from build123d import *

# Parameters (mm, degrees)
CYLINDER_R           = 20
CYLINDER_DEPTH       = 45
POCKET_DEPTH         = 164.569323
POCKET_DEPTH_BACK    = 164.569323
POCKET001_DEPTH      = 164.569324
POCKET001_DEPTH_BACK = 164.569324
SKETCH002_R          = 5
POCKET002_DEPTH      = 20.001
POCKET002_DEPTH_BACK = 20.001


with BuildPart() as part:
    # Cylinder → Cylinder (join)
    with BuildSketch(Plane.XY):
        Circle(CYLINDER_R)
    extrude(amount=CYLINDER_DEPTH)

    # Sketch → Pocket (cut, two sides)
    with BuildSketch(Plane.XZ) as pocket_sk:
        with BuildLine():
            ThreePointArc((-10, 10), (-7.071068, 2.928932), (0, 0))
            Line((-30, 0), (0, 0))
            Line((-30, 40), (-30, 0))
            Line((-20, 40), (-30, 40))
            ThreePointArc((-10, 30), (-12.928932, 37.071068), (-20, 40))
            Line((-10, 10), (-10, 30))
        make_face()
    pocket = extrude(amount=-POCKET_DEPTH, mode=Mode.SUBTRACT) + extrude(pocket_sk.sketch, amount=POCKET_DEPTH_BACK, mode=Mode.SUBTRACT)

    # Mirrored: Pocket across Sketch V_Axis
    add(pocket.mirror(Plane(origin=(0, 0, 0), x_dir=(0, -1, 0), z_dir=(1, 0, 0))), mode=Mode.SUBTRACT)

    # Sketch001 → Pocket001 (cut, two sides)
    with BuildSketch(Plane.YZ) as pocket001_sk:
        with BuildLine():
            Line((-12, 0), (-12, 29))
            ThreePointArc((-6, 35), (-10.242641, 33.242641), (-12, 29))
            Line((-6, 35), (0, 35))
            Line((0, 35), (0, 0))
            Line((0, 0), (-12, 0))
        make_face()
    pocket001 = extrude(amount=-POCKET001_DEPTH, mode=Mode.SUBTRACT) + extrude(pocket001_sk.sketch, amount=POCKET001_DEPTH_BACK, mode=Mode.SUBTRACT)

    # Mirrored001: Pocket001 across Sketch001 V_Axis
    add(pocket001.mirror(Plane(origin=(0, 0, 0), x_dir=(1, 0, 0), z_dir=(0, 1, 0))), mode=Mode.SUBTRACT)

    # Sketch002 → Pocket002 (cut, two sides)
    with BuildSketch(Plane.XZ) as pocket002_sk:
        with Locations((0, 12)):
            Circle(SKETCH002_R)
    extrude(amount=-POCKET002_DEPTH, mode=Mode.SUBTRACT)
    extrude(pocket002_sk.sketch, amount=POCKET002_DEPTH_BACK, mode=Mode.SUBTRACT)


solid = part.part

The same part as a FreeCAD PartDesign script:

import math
import FreeCAD as App
import Part
import Sketcher

doc = App.newDocument("Part")
body = doc.addObject("PartDesign::Body", "Body")

# Sketch on XY plane
sketch1 = doc.addObject("Sketcher::SketchObject", "Sketch")
body.addObject(sketch1)
sketch1.AttachmentSupport = (doc.XY_Plane, [""])
sketch1.MapMode = "FlatFace"
sketch1.addGeometry(Part.Circle(App.Vector(0, 0, 0), App.Vector(0, 0, 1), 20), False)
sketch1.addConstraint(Sketcher.Constraint("Coincident", 0, 3, -1, 1))
sketch1.addConstraint(Sketcher.Constraint("Diameter", 0, 40.0))
pad1 = doc.addObject("PartDesign::Pad", "Pad")
body.addObject(pad1)
pad1.Profile = sketch1
pad1.Length = 45

# Sketch on XZ plane
sketch2 = doc.addObject("Sketcher::SketchObject", "Sketch001")
body.addObject(sketch2)
sketch2.AttachmentSupport = (doc.XZ_Plane, [""])
sketch2.MapMode = "FlatFace"
sketch2.addGeometry(Part.ArcOfCircle(Part.Circle(App.Vector(0, 10, 0), App.Vector(0, 0, 1), 10), math.radians(180), math.radians(270)), False)
sketch2.addGeometry(Part.LineSegment(App.Vector(-10, 10, 0), App.Vector(-10, 30, 0)), False)
sketch2.addGeometry(Part.ArcOfCircle(Part.Circle(App.Vector(-20, 30, 0), App.Vector(0, 0, 1), 10), math.radians(0), math.radians(90)), False)
sketch2.addGeometry(Part.LineSegment(App.Vector(-20, 40, 0), App.Vector(-30, 40, 0)), False)
sketch2.addGeometry(Part.LineSegment(App.Vector(-30, 40, 0), App.Vector(-30, 0, 0)), False)
sketch2.addGeometry(Part.LineSegment(App.Vector(-30, 0, 0), App.Vector(0, 0, 0)), False)
sketch2.addConstraint(Sketcher.Constraint("Tangent", 0, 1, 1, 1))
sketch2.addConstraint(Sketcher.Constraint("Tangent", 1, 2, 2, 1))
sketch2.addConstraint(Sketcher.Constraint("Tangent", 2, 2, 3, 1))
sketch2.addConstraint(Sketcher.Constraint("Coincident", 3, 2, 4, 1))
sketch2.addConstraint(Sketcher.Constraint("Coincident", 4, 2, 5, 1))
sketch2.addConstraint(Sketcher.Constraint("Tangent", 5, 2, 0, 2))
sketch2.addConstraint(Sketcher.Constraint("Vertical", 1))
sketch2.addConstraint(Sketcher.Constraint("Horizontal", 3))
sketch2.addConstraint(Sketcher.Constraint("Vertical", 4))
sketch2.addConstraint(Sketcher.Constraint("Horizontal", 5))
sketch2.addConstraint(Sketcher.Constraint("Coincident", 5, 2, -1, 1))
sketch2.addConstraint(Sketcher.Constraint("Equal", 0, 2))
sketch2.addConstraint(Sketcher.Constraint("Radius", 0, 9.999999))
sketch2.addConstraint(Sketcher.Constraint("DistanceX", 3, 2, 3, 1, 10.0))
sketch2.addConstraint(Sketcher.Constraint("DistanceY", 1, 1, 1, 2, 20.0))
pocket1 = doc.addObject("PartDesign::Pocket", "Pocket")
body.addObject(pocket1)
pocket1.Profile = sketch2
pocket1.Type = "ThroughAll"
pocket1.Midplane = True
doc.recompute()

mirrored = doc.addObject("PartDesign::Mirrored", "Mirrored")
body.addObject(mirrored)
mirrored.Originals = [pocket1]
mirrored.MirrorPlane = (doc.YZ_Plane, [""])
body.Tip = mirrored

# Sketch on YZ plane
sketch3 = doc.addObject("Sketcher::SketchObject", "Sketch002")
body.addObject(sketch3)
sketch3.AttachmentSupport = (doc.YZ_Plane, [""])
sketch3.MapMode = "FlatFace"
sketch3.addGeometry(Part.LineSegment(App.Vector(-12, 29, 0), App.Vector(-12, 0, 0)), False)
sketch3.addGeometry(Part.LineSegment(App.Vector(-12, 0, 0), App.Vector(0, 0, 0)), False)
sketch3.addGeometry(Part.LineSegment(App.Vector(0, 0, 0), App.Vector(0, 35, 0)), False)
sketch3.addGeometry(Part.LineSegment(App.Vector(0, 35, 0), App.Vector(-6, 35, 0)), False)
sketch3.addGeometry(Part.ArcOfCircle(Part.Circle(App.Vector(-6, 29, 0), App.Vector(0, 0, 1), 6), math.radians(90), math.radians(180)), False)
sketch3.addConstraint(Sketcher.Constraint("Coincident", 0, 2, 1, 1))
sketch3.addConstraint(Sketcher.Constraint("Coincident", 1, 2, 2, 1))
sketch3.addConstraint(Sketcher.Constraint("Coincident", 2, 2, 3, 1))
sketch3.addConstraint(Sketcher.Constraint("Tangent", 3, 2, 4, 1))
sketch3.addConstraint(Sketcher.Constraint("Tangent", 4, 2, 0, 1))
sketch3.addConstraint(Sketcher.Constraint("Vertical", 0))
sketch3.addConstraint(Sketcher.Constraint("Horizontal", 1))
sketch3.addConstraint(Sketcher.Constraint("Vertical", 2))
sketch3.addConstraint(Sketcher.Constraint("Horizontal", 3))
sketch3.addConstraint(Sketcher.Constraint("Coincident", 1, 2, -1, 1))
sketch3.addConstraint(Sketcher.Constraint("Radius", 4, 5.999999))
sketch3.addConstraint(Sketcher.Constraint("DistanceX", 1, 1, 1, 2, 12.0))
sketch3.addConstraint(Sketcher.Constraint("DistanceY", 0, 2, 0, 1, 29.0))
pocket2 = doc.addObject("PartDesign::Pocket", "Pocket001")
body.addObject(pocket2)
pocket2.Profile = sketch3
pocket2.Type = "ThroughAll"
pocket2.Midplane = True
doc.recompute()

mirrored2 = doc.addObject("PartDesign::Mirrored", "Mirrored001")
body.addObject(mirrored2)
mirrored2.Originals = [pocket2]
mirrored2.MirrorPlane = (doc.XZ_Plane, [""])
body.Tip = mirrored2

# Sketch on XZ plane
sketch4 = doc.addObject("Sketcher::SketchObject", "Sketch003")
body.addObject(sketch4)
sketch4.AttachmentSupport = (doc.XZ_Plane, [""])
sketch4.MapMode = "FlatFace"
sketch4.addGeometry(Part.Circle(App.Vector(0, 12, 0), App.Vector(0, 0, 1), 5), False)
sketch4.addConstraint(Sketcher.Constraint("PointOnObject", 0, 3, -2))
sketch4.addConstraint(Sketcher.Constraint("Diameter", 0, 10.0))
sketch4.addConstraint(Sketcher.Constraint("DistanceY", -1, 1, 0, 3, 12.0))
pocket3 = doc.addObject("PartDesign::Pocket", "Pocket002")
body.addObject(pocket3)
pocket3.Profile = sketch4
pocket3.Type = "ThroughAll"
pocket3.Midplane = True

doc.recompute()
